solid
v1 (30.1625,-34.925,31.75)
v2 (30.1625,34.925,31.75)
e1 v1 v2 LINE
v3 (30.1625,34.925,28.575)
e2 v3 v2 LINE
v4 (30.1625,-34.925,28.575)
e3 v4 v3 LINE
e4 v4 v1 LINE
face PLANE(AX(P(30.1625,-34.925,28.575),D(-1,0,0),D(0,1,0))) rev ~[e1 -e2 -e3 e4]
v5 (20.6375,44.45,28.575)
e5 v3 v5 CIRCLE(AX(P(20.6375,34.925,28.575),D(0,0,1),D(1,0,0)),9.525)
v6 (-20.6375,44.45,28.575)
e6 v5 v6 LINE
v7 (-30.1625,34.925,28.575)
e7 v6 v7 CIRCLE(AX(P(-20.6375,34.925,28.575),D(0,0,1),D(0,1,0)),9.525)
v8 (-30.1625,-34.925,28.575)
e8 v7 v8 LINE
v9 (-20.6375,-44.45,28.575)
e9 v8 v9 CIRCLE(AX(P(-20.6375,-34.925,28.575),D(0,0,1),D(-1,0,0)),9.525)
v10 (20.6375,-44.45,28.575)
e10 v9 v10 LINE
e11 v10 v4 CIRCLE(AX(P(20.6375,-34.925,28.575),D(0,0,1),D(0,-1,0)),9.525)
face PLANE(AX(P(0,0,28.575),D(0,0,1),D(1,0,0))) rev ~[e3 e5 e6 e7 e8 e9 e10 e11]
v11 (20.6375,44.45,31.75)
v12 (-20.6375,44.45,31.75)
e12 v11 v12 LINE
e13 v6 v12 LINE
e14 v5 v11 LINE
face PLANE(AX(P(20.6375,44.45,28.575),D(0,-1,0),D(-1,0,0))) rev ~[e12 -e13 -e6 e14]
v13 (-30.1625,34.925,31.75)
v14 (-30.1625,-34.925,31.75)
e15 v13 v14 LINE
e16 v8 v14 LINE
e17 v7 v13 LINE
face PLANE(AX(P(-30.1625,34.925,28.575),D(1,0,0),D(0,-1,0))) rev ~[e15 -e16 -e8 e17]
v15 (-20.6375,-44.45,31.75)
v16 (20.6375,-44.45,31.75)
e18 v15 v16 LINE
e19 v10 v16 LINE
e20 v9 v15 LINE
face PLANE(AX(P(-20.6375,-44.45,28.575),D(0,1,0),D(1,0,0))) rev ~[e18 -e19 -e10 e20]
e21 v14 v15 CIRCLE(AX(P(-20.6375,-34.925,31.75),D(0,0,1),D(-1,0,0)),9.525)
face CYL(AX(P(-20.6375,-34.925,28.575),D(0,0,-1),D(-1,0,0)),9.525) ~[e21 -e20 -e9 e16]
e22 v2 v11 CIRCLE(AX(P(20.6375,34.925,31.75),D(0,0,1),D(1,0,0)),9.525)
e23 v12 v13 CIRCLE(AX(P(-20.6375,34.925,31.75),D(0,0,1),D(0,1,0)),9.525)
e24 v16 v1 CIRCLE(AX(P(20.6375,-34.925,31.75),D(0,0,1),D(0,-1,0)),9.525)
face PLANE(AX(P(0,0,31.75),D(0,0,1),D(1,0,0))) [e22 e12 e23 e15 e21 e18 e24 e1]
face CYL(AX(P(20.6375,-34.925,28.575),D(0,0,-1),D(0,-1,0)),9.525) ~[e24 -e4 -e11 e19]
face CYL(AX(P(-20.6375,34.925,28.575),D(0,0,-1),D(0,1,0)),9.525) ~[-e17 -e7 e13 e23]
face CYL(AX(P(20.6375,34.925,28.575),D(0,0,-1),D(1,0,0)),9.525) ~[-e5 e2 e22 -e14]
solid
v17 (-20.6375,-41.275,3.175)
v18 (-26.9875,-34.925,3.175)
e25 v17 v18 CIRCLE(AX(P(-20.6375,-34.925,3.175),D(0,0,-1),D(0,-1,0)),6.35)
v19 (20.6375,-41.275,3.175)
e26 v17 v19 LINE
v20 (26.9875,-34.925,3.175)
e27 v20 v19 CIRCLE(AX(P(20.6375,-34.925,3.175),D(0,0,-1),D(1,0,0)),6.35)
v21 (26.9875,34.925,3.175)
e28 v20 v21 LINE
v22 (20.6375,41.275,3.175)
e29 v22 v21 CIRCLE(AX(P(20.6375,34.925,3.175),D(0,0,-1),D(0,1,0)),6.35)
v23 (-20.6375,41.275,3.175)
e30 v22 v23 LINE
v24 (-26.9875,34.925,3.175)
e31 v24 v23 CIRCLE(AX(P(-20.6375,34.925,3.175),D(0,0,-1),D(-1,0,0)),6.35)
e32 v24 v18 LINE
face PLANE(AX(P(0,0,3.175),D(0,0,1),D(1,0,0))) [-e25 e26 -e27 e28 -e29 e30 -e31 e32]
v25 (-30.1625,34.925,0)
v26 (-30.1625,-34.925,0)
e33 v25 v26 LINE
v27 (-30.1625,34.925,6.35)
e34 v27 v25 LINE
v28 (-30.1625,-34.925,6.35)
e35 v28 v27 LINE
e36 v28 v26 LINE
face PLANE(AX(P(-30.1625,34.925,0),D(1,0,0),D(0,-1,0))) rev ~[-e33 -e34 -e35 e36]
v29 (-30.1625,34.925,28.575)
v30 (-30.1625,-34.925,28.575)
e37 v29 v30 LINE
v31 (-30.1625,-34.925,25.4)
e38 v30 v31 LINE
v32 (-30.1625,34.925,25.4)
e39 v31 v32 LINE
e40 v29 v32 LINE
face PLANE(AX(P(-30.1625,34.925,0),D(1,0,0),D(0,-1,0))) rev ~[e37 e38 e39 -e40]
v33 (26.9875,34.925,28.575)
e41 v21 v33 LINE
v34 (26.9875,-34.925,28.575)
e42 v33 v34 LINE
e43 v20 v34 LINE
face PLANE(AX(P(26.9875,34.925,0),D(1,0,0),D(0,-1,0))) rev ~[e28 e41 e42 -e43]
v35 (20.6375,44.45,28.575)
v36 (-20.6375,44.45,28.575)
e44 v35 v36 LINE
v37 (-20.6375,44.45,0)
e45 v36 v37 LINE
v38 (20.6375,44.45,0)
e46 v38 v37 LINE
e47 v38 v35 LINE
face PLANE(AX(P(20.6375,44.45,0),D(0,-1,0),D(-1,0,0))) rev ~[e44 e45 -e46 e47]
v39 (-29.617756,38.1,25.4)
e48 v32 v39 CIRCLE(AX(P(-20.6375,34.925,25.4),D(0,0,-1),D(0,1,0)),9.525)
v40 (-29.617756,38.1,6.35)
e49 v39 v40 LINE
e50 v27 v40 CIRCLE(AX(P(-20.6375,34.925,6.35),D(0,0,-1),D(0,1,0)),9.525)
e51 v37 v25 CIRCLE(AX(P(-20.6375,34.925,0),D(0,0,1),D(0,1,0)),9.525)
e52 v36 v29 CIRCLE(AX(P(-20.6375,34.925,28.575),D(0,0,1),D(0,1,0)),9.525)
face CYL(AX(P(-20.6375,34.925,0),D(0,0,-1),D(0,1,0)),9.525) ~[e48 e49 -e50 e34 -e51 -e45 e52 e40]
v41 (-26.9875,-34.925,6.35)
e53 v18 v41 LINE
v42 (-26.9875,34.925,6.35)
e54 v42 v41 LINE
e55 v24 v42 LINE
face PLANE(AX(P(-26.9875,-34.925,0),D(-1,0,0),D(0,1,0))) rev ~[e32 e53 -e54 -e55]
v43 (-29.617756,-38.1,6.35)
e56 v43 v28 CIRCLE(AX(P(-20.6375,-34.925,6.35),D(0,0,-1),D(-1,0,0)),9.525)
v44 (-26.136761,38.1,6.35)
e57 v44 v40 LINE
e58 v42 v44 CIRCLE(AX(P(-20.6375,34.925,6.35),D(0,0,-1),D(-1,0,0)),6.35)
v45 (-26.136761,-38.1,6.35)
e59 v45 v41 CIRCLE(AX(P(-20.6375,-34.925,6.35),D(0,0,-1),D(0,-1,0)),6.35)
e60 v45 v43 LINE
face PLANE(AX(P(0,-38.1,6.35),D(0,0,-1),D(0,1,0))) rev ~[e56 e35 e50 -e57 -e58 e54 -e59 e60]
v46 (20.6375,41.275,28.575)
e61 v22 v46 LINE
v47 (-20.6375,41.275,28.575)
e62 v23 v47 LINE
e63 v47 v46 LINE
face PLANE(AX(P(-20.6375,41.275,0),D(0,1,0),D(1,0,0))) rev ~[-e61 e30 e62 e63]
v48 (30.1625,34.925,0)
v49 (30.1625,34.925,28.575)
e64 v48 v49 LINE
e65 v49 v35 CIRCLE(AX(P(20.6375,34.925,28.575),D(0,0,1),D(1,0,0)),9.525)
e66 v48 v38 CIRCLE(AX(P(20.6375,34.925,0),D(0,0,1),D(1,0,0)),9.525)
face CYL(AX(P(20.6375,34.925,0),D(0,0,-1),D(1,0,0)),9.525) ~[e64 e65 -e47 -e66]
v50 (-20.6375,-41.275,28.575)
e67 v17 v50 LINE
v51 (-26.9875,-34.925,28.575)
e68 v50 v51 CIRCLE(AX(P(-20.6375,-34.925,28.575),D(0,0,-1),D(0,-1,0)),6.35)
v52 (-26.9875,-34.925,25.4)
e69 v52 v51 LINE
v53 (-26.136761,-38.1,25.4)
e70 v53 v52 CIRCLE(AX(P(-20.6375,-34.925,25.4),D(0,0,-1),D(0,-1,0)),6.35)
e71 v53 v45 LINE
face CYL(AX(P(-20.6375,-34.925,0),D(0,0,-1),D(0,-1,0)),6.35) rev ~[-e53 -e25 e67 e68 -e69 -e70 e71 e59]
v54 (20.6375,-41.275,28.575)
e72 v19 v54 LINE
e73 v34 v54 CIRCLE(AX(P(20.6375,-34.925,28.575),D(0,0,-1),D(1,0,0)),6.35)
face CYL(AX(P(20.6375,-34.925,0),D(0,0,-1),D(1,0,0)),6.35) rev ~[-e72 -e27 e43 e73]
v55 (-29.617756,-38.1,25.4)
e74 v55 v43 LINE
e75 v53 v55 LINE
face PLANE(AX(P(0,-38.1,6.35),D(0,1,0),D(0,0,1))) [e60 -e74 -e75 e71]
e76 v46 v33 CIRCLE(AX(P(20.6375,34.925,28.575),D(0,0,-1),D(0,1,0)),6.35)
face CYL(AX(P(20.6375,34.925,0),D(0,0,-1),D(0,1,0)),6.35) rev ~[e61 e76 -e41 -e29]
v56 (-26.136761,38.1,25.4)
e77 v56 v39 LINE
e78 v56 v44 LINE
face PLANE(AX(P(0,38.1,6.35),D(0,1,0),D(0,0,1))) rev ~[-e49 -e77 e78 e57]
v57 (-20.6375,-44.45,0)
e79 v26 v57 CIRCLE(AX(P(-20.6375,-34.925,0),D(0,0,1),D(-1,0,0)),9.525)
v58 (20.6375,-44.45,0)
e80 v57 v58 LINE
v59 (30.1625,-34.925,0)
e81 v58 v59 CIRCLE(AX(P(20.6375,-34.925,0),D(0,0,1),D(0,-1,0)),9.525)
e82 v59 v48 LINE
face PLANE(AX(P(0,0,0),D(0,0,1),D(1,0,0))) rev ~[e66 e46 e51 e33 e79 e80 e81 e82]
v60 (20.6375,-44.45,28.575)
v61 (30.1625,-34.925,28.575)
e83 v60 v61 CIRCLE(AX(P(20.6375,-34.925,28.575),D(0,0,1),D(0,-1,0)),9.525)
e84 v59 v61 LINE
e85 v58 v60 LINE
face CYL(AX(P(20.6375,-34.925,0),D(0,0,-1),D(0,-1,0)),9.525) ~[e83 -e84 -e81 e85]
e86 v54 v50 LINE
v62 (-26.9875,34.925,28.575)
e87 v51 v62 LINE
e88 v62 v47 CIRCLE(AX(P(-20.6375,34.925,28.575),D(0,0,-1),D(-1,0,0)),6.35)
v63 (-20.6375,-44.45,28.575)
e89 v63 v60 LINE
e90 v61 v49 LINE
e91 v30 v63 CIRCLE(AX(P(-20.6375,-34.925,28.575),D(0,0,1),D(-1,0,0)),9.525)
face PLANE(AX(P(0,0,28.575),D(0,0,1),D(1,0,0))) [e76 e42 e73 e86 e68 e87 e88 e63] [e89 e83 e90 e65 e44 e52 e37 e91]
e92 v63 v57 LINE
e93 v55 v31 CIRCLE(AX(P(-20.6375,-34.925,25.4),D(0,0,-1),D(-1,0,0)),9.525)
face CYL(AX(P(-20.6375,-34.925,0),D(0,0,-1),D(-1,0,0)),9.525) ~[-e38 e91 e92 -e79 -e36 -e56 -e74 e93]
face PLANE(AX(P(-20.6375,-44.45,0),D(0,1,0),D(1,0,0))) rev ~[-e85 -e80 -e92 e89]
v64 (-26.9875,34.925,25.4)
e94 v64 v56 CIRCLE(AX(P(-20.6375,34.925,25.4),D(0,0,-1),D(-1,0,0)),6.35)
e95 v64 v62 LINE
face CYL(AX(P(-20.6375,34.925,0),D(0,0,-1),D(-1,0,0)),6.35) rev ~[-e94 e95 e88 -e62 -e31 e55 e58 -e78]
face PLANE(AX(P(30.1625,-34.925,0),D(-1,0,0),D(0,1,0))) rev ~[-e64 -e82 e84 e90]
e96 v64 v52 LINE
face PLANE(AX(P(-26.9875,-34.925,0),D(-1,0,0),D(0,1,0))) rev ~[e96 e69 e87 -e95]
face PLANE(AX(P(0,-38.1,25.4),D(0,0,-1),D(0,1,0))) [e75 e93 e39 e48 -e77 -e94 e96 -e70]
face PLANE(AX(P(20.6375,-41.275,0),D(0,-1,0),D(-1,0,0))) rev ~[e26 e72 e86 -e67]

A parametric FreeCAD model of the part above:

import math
import FreeCAD as App
import Part
import Sketcher
Q = App.Units.Quantity


def add_polygon(sketch, points):
    """Adds a closed chain of lines whose ends are joined by coincident constraints."""
    first, n = sketch.GeometryCount, len(points)
    for a, b in zip(points, points[1:] + points[:1]):
        sketch.addGeometry(Part.LineSegment(App.Vector(*a, 0), App.Vector(*b, 0)), False)
    for i in range(n):
        sketch.addConstraint(Sketcher.Constraint("Coincident", first + i, 2, first + (i + 1) % n, 1))

doc = App.newDocument("Part")
body = doc.addObject("PartDesign::Body", "Body")

# Sketch on XY plane
sketch1 = doc.addObject("Sketcher::SketchObject", "Sketch")
body.addObject(sketch1)
sketch1.AttachmentSupport = (doc.XY_Plane, [""])
sketch1.MapMode = "FlatFace"
sketch1.addGeometry([
    Part.LineSegment(App.Vector(-20.6375, -44.45, 0), App.Vector(20.6375, -44.45, 0)),  # 0
    Part.ArcOfCircle(Part.Circle(App.Vector(20.6375, -34.925, 0), App.Vector(0, 0, 1), 9.525), math.radians(-90), math.radians(0)),  # 1
    Part.LineSegment(App.Vector(30.1625, -34.925, 0), App.Vector(30.1625, 34.925, 0)),  # 2
    Part.ArcOfCircle(Part.Circle(App.Vector(20.6375, 34.925, 0), App.Vector(0, 0, 1), 9.525), math.radians(0), math.radians(90)),  # 3
    Part.LineSegment(App.Vector(20.6375, 44.45, 0), App.Vector(-20.6375, 44.45, 0)),  # 4
    Part.ArcOfCircle(Part.Circle(App.Vector(-20.6375, 34.925, 0), App.Vector(0, 0, 1), 9.525), math.radians(90), math.radians(180)),  # 5
    Part.LineSegment(App.Vector(-30.1625, 34.925, 0), App.Vector(-30.1625, -34.925, 0)),  # 6
    Part.ArcOfCircle(Part.Circle(App.Vector(-20.6375, -34.925, 0), App.Vector(0, 0, 1), 9.525), math.radians(180), math.radians(270)),  # 7
], False)
sketch1.addConstraint([
    Sketcher.Constraint("Tangent", 0, 2, 1, 1),
    Sketcher.Constraint("Tangent", 1, 2, 2, 1),
    Sketcher.Constraint("Tangent", 2, 2, 3, 1),
    Sketcher.Constraint("Tangent", 3, 2, 4, 1),
    Sketcher.Constraint("Tangent", 4, 2, 5, 1),
    Sketcher.Constraint("Tangent", 5, 2, 6, 1),
    Sketcher.Constraint("Tangent", 6, 2, 7, 1),
    Sketcher.Constraint("Tangent", 7, 2, 0, 1),
    Sketcher.Constraint("Horizontal", 0),
    Sketcher.Constraint("Vertical", 2),
    Sketcher.Constraint("Horizontal", 4),
    Sketcher.Constraint("Vertical", 6),
    Sketcher.Constraint("Equal", 1, 3),
    Sketcher.Constraint("Equal", 3, 5),
    Sketcher.Constraint("Equal", 5, 7),
    Sketcher.Constraint("Symmetric", 1, 3, 5, 3, -1, 1),
    Sketcher.Constraint("Radius", 1, Q("0.375 in")),
    Sketcher.Constraint("DistanceX", 7, 3, 1, 2, Q("2 in")),
    Sketcher.Constraint("DistanceY", 2, 1, 2, 2, Q("2.75 in")),
])
pad1 = doc.addObject("PartDesign::Pad", "Pad")
body.addObject(pad1)
pad1.Profile = sketch1
pad1.Length = Q("0.125 in")

# Sketch on XY plane
sketch2 = doc.addObject("Sketcher::SketchObject", "Sketch001")
body.addObject(sketch2)
sketch2.AttachmentSupport = (doc.XY_Plane, [""])
sketch2.MapMode = "FlatFace"
sketch2.addGeometry([
    Part.LineSegment(App.Vector(-20.6375, -44.45, 0), App.Vector(20.6375, -44.45, 0)),  # 0
    Part.ArcOfCircle(Part.Circle(App.Vector(20.6375, -34.925, 0), App.Vector(0, 0, 1), 9.525), math.radians(-90), math.radians(0)),  # 1
    Part.LineSegment(App.Vector(30.1625, -34.925, 0), App.Vector(30.1625, 34.925, 0)),  # 2
    Part.ArcOfCircle(Part.Circle(App.Vector(20.6375, 34.925, 0), App.Vector(0, 0, 1), 9.525), math.radians(0), math.radians(90)),  # 3
    Part.LineSegment(App.Vector(20.6375, 44.45, 0), App.Vector(-20.6375, 44.45, 0)),  # 4
    Part.ArcOfCircle(Part.Circle(App.Vector(-20.6375, 34.925, 0), App.Vector(0, 0, 1), 9.525), math.radians(90), math.radians(180)),  # 5
    Part.LineSegment(App.Vector(-30.1625, 34.925, 0), App.Vector(-30.1625, -34.925, 0)),  # 6
    Part.ArcOfCircle(Part.Circle(App.Vector(-20.6375, -34.925, 0), App.Vector(0, 0, 1), 9.525), math.radians(180), math.radians(270)),  # 7
    Part.LineSegment(App.Vector(26.9875, 34.925, 0), App.Vector(26.9875, -34.925, 0)),  # 8
    Part.ArcOfCircle(Part.Circle(App.Vector(20.6375, -34.925, 0), App.Vector(0, 0, 1), 6.35), math.radians(-90), math.radians(0)),  # 9
    Part.LineSegment(App.Vector(20.6375, -41.275, 0), App.Vector(-20.6375, -41.275, 0)),  # 10
    Part.ArcOfCircle(Part.Circle(App.Vector(-20.6375, -34.925, 0), App.Vector(0, 0, 1), 6.35), math.radians(180), math.radians(270)),  # 11
    Part.LineSegment(App.Vector(-26.9875, -34.925, 0), App.Vector(-26.9875, 34.925, 0)),  # 12
    Part.ArcOfCircle(Part.Circle(App.Vector(-20.6375, 34.925, 0), App.Vector(0, 0, 1), 6.35), math.radians(90), math.radians(180)),  # 13
    Part.LineSegment(App.Vector(-20.6375, 41.275, 0), App.Vector(20.6375, 41.275, 0)),  # 14
    Part.ArcOfCircle(Part.Circle(App.Vector(20.6375, 34.925, 0), App.Vector(0, 0, 1), 6.35), math.radians(0), math.radians(90)),  # 15
], False)
sketch2.addConstraint([
    Sketcher.Constraint("Tangent", 0, 2, 1, 1),
    Sketcher.Constraint("Tangent", 1, 2, 2, 1),
    Sketcher.Constraint("Tangent", 2, 2, 3, 1),
    Sketcher.Constraint("Tangent", 3, 2, 4, 1),
    Sketcher.Constraint("Tangent", 4, 2, 5, 1),
    Sketcher.Constraint("Tangent", 5, 2, 6, 1),
    Sketcher.Constraint("Tangent", 6, 2, 7, 1),
    Sketcher.Constraint("Tangent", 7, 2, 0, 1),
    Sketcher.Constraint("Tangent", 8, 2, 9, 2),
    Sketcher.Constraint("Tangent", 9, 1, 10, 1),
    Sketcher.Constraint("Tangent", 10, 2, 11, 2),
    Sketcher.Constraint("Tangent", 11, 1, 12, 1),
    Sketcher.Constraint("Tangent", 12, 2, 13, 2),
    Sketcher.Constraint("Tangent", 13, 1, 14, 1),
    Sketcher.Constraint("Tangent", 14, 2, 15, 2),
    Sketcher.Constraint("Tangent", 15, 1, 8, 1),
    Sketcher.Constraint("Horizontal", 0),
    Sketcher.Constraint("Vertical", 2),
    Sketcher.Constraint("Horizontal", 4),
    Sketcher.Constraint("Vertical", 6),
    Sketcher.Constraint("Vertical", 8),
    Sketcher.Constraint("Horizontal", 10),
    Sketcher.Constraint("Vertical", 12),
    Sketcher.Constraint("Horizontal", 14),
    Sketcher.Constraint("Coincident", 9, 3, 1, 3),
    Sketcher.Constraint("Coincident", 11, 3, 7, 3),
    Sketcher.Constraint("Coincident", 13, 3, 5, 3),
    Sketcher.Constraint("Equal", 1, 3),
    Sketcher.Constraint("Equal", 3, 5),
    Sketcher.Constraint("Equal", 5, 7),
    Sketcher.Constraint("Equal", 13, 15),
    Sketcher.Constraint("Symmetric", 1, 3, 5, 3, -1, 1),
    Sketcher.Constraint("Radius", 9, Q("0.25 in")),
    Sketcher.Constraint("Radius", 1, Q("0.375 in")),
    Sketcher.Constraint("DistanceX", 7, 3, 1, 2, Q("2 in")),
    Sketcher.Constraint("DistanceY", 2, 1, 2, 2, Q("2.75 in")),
])
pad2 = doc.addObject("PartDesign::Pad", "Pad001")
body.addObject(pad2)
pad2.Profile = sketch2
pad2.Length = Q("1.125 in")

# Sketch on YZ plane
sketch3 = doc.addObject("Sketcher::SketchObject", "Sketch002")
body.addObject(sketch3)
sketch3.AttachmentSupport = (doc.YZ_Plane, [""])
sketch3.MapMode = "FlatFace"
add_polygon(sketch3, [(-38.1, 25.4), (-38.1, 6.35), (38.1, 6.35), (38.1, 25.4)])  # lines 0-3
sketch3.addConstraint([
    Sketcher.Constraint("Vertical", 0),
    Sketcher.Constraint("Horizontal", 1),
    Sketcher.Constraint("Vertical", 2),
    Sketcher.Constraint("Horizontal", 3),
    Sketcher.Constraint("DistanceX", 1, 1, 1, 2, Q("3 in")),
    Sketcher.Constraint("DistanceY", -1, 1, 2, 2, Q("1 in")),
    Sketcher.Constraint("DistanceY", 0, 2, 0, 1, Q("0.75 in")),
    Sketcher.Constraint("DistanceX", 0, 2, -1, 1, Q("1.5 in")),
])
pocket1 = doc.addObject("PartDesign::Pocket", "Pocket")
body.addObject(pocket1)
pocket1.Profile = sketch3
pocket1.Length = Q("2 in")
body2 = doc.addObject("PartDesign::Body", "Body001")

# Sketch on XY plane
sketch4 = doc.addObject("Sketcher::SketchObject", "Sketch003")
body2.addObject(sketch4)
sketch4.AttachmentSupport = (doc.getObject("XY_Plane001"), [""])
sketch4.MapMode = "FlatFace"
sketch4.AttachmentOffset = App.Placement(App.Vector(0, 0, 1.125 * 25.4), App.Rotation())
sketch4.addGeometry([
    Part.LineSegment(App.Vector(-20.6375, -44.45, 0), App.Vector(20.6375, -44.45, 0)),  # 0
    Part.ArcOfCircle(Part.Circle(App.Vector(20.6375, -34.925, 0), App.Vector(0, 0, 1), 9.525), math.radians(-90), math.radians(0)),  # 1
    Part.LineSegment(App.Vector(30.1625, -34.925, 0), App.Vector(30.1625, 34.925, 0)),  # 2
    Part.ArcOfCircle(Part.Circle(App.Vector(20.6375, 34.925, 0), App.Vector(0, 0, 1), 9.525), math.radians(0), math.radians(90)),  # 3
    Part.LineSegment(App.Vector(20.6375, 44.45, 0), App.Vector(-20.6375, 44.45, 0)),  # 4
    Part.ArcOfCircle(Part.Circle(App.Vector(-20.6375, 34.925, 0), App.Vector(0, 0, 1), 9.525), math.radians(90), math.radians(180)),  # 5
    Part.LineSegment(App.Vector(-30.1625, 34.925, 0), App.Vector(-30.1625, -34.925, 0)),  # 6
    Part.ArcOfCircle(Part.Circle(App.Vector(-20.6375, -34.925, 0), App.Vector(0, 0, 1), 9.525), math.radians(180), math.radians(270)),  # 7
], False)
sketch4.addConstraint([
    Sketcher.Constraint("Tangent", 0, 2, 1, 1),
    Sketcher.Constraint("Tangent", 1, 2, 2, 1),
    Sketcher.Constraint("Tangent", 2, 2, 3, 1),
    Sketcher.Constraint("Tangent", 3, 2, 4, 1),
    Sketcher.Constraint("Tangent", 4, 2, 5, 1),
    Sketcher.Constraint("Tangent", 5, 2, 6, 1),
    Sketcher.Constraint("Tangent", 6, 2, 7, 1),
    Sketcher.Constraint("Tangent", 7, 2, 0, 1),
    Sketcher.Constraint("Horizontal", 0),
    Sketcher.Constraint("Vertical", 2),
    Sketcher.Constraint("Horizontal", 4),
    Sketcher.Constraint("Vertical", 6),
    Sketcher.Constraint("Equal", 1, 3),
    Sketcher.Constraint("Equal", 3, 5),
    Sketcher.Constraint("Equal", 5, 7),
    Sketcher.Constraint("Symmetric", 1, 3, 5, 3, -1, 1),
    Sketcher.Constraint("Radius", 1, Q("0.375 in")),
    Sketcher.Constraint("DistanceX", 7, 3, 1, 2, Q("2 in")),
    Sketcher.Constraint("DistanceY", 2, 1, 2, 2, Q("2.75 in")),
])
pad3 = doc.addObject("PartDesign::Pad", "Pad002")
body2.addObject(pad3)
pad3.Profile = sketch4
pad3.Length = Q("0.125 in")

doc.recompute()
